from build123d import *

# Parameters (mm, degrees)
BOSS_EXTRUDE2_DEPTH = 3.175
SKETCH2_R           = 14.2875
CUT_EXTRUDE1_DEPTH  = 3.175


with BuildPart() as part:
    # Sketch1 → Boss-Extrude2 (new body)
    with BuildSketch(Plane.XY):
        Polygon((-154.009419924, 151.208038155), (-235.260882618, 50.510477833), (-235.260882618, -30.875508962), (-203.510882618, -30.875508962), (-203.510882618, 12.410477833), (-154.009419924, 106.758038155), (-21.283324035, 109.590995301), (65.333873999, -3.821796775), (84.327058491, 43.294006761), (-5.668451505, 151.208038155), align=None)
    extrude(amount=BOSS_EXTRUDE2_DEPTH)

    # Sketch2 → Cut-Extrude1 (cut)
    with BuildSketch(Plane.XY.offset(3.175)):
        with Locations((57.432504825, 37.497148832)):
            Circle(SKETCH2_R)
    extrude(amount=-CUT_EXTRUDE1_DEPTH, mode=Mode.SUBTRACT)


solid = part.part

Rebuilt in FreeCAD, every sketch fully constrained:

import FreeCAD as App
import Part
import Sketcher
Q = App.Units.Quantity


def add_polygon(sketch, points):
    """Adds a closed chain of lines whose ends are joined by coincident constraints."""
    first, n = sketch.GeometryCount, len(points)
    for a, b in zip(points, points[1:] + points[:1]):
        sketch.addGeometry(Part.LineSegment(App.Vector(*a, 0), App.Vector(*b, 0)), False)
    for i in range(n):
        sketch.addConstraint(Sketcher.Constraint("Coincident", first + i, 2, first + (i + 1) % n, 1))

doc = App.newDocument("Part")
body = doc.addObject("PartDesign::Body", "Body")

# Sketch on XY plane
sketch1 = body.newObject("Sketcher::SketchObject", "Sketch")
sketch1.AttachmentSupport = (doc.getObject("XY_Plane"), [""])
sketch1.MapMode = "FlatFace"
add_polygon(sketch1, [(-154.00942, 151.208038), (-235.260883, 50.510478), (-235.260883, -30.875509), (-203.510883, -30.875509), (-203.510883, 12.410478), (-154.00942, 106.758038), (-21.283324, 109.590995), (65.333874, -3.821797), (84.327058, 43.294007), (-5.668452, 151.208038)])  # lines 0-9
sketch1.addConstraint(Sketcher.Constraint("Vertical", 1))
sketch1.addConstraint(Sketcher.Constraint("Horizontal", 2))
sketch1.addConstraint(Sketcher.Constraint("Vertical", 3))
sketch1.addConstraint(Sketcher.Constraint("Horizontal", 9))
sketch1.addConstraint(Sketcher.Constraint("Vertical", 4, 2, 9, 2))
sketch1.addConstraint(Sketcher.Constraint("Distance", 7, Q("2 in")))
sketch1.addConstraint(Sketcher.Constraint("DistanceX", 2, 1, 2, 2, Q("1.25 in")))
sketch1.addConstraint(Sketcher.Constraint("DistanceY", 3, 2, 0, 2, Q("1.5 in")))
sketch1.addConstraint(Sketcher.Constraint("DistanceY", 4, 2, 8, 2, Q("1.75 in")))
sketch1.addConstraint(Sketcher.Constraint("DistanceX", 9, 2, 9, 1, 148.340968))
sketch1.addConstraint(Sketcher.Constraint("DistanceX", 5, 2, 6, 2, 86.617198))
sketch1.addConstraint(Sketcher.Constraint("DistanceY", 1, 2, 1, 1, 81.385987))
sketch1.addConstraint(Sketcher.Constraint("DistanceY", 1, 2, -1, 1, 30.875509))
sketch1.addConstraint(Sketcher.Constraint("DistanceX", 4, 2, -1, 1, 154.00942))
sketch1.addConstraint(Sketcher.Constraint("DistanceY", -1, 1, 4, 2, 106.758038))
sketch1.addConstraint(Sketcher.Constraint("DistanceX", -1, 1, 7, 2, 84.327058))
sketch1.addConstraint(Sketcher.Constraint("DistanceX", 3, 2, 5, 2, 182.227559))
sketch1.addConstraint(Sketcher.Constraint("DistanceY", 7, 2, 5, 2, 66.296989))
sketch1.addConstraint(Sketcher.Constraint("DistanceY", 7, 2, 4, 2, 63.464031))
sketch1.addConstraint(Sketcher.Constraint("DistanceX", 3, 2, 7, 2, 287.837941))
pad1 = body.newObject("PartDesign::Pad", "Pad")
pad1.Profile = sketch1
pad1.Length = Q("0.125 in")

# Sketch on XY plane
sketch2 = body.newObject("Sketcher::SketchObject", "Sketch001")
sketch2.AttachmentSupport = (doc.getObject("XY_Plane"), [""])
sketch2.MapMode = "FlatFace"
sketch2.AttachmentOffset = App.Placement(App.Vector(0, 0, 0.125 * 25.4), App.Rotation())
sketch2.addGeometry(Part.Circle(App.Vector(57.432505, 37.497149, 0), App.Vector(0, 0, 1), 14.2875), False)
sketch2.addConstraint(Sketcher.Constraint("Diameter", 0, Q("1.125 in")))
sketch2.addConstraint(Sketcher.Constraint("DistanceY", -1, 1, 0, 3, 37.497149))
sketch2.addConstraint(Sketcher.Constraint("DistanceX", -1, 1, 0, 3, 57.432505))
pocket1 = body.newObject("PartDesign::Pocket", "Pocket")
pocket1.Profile = sketch2
pocket1.Length = Q("0.125 in")

doc.recompute()
